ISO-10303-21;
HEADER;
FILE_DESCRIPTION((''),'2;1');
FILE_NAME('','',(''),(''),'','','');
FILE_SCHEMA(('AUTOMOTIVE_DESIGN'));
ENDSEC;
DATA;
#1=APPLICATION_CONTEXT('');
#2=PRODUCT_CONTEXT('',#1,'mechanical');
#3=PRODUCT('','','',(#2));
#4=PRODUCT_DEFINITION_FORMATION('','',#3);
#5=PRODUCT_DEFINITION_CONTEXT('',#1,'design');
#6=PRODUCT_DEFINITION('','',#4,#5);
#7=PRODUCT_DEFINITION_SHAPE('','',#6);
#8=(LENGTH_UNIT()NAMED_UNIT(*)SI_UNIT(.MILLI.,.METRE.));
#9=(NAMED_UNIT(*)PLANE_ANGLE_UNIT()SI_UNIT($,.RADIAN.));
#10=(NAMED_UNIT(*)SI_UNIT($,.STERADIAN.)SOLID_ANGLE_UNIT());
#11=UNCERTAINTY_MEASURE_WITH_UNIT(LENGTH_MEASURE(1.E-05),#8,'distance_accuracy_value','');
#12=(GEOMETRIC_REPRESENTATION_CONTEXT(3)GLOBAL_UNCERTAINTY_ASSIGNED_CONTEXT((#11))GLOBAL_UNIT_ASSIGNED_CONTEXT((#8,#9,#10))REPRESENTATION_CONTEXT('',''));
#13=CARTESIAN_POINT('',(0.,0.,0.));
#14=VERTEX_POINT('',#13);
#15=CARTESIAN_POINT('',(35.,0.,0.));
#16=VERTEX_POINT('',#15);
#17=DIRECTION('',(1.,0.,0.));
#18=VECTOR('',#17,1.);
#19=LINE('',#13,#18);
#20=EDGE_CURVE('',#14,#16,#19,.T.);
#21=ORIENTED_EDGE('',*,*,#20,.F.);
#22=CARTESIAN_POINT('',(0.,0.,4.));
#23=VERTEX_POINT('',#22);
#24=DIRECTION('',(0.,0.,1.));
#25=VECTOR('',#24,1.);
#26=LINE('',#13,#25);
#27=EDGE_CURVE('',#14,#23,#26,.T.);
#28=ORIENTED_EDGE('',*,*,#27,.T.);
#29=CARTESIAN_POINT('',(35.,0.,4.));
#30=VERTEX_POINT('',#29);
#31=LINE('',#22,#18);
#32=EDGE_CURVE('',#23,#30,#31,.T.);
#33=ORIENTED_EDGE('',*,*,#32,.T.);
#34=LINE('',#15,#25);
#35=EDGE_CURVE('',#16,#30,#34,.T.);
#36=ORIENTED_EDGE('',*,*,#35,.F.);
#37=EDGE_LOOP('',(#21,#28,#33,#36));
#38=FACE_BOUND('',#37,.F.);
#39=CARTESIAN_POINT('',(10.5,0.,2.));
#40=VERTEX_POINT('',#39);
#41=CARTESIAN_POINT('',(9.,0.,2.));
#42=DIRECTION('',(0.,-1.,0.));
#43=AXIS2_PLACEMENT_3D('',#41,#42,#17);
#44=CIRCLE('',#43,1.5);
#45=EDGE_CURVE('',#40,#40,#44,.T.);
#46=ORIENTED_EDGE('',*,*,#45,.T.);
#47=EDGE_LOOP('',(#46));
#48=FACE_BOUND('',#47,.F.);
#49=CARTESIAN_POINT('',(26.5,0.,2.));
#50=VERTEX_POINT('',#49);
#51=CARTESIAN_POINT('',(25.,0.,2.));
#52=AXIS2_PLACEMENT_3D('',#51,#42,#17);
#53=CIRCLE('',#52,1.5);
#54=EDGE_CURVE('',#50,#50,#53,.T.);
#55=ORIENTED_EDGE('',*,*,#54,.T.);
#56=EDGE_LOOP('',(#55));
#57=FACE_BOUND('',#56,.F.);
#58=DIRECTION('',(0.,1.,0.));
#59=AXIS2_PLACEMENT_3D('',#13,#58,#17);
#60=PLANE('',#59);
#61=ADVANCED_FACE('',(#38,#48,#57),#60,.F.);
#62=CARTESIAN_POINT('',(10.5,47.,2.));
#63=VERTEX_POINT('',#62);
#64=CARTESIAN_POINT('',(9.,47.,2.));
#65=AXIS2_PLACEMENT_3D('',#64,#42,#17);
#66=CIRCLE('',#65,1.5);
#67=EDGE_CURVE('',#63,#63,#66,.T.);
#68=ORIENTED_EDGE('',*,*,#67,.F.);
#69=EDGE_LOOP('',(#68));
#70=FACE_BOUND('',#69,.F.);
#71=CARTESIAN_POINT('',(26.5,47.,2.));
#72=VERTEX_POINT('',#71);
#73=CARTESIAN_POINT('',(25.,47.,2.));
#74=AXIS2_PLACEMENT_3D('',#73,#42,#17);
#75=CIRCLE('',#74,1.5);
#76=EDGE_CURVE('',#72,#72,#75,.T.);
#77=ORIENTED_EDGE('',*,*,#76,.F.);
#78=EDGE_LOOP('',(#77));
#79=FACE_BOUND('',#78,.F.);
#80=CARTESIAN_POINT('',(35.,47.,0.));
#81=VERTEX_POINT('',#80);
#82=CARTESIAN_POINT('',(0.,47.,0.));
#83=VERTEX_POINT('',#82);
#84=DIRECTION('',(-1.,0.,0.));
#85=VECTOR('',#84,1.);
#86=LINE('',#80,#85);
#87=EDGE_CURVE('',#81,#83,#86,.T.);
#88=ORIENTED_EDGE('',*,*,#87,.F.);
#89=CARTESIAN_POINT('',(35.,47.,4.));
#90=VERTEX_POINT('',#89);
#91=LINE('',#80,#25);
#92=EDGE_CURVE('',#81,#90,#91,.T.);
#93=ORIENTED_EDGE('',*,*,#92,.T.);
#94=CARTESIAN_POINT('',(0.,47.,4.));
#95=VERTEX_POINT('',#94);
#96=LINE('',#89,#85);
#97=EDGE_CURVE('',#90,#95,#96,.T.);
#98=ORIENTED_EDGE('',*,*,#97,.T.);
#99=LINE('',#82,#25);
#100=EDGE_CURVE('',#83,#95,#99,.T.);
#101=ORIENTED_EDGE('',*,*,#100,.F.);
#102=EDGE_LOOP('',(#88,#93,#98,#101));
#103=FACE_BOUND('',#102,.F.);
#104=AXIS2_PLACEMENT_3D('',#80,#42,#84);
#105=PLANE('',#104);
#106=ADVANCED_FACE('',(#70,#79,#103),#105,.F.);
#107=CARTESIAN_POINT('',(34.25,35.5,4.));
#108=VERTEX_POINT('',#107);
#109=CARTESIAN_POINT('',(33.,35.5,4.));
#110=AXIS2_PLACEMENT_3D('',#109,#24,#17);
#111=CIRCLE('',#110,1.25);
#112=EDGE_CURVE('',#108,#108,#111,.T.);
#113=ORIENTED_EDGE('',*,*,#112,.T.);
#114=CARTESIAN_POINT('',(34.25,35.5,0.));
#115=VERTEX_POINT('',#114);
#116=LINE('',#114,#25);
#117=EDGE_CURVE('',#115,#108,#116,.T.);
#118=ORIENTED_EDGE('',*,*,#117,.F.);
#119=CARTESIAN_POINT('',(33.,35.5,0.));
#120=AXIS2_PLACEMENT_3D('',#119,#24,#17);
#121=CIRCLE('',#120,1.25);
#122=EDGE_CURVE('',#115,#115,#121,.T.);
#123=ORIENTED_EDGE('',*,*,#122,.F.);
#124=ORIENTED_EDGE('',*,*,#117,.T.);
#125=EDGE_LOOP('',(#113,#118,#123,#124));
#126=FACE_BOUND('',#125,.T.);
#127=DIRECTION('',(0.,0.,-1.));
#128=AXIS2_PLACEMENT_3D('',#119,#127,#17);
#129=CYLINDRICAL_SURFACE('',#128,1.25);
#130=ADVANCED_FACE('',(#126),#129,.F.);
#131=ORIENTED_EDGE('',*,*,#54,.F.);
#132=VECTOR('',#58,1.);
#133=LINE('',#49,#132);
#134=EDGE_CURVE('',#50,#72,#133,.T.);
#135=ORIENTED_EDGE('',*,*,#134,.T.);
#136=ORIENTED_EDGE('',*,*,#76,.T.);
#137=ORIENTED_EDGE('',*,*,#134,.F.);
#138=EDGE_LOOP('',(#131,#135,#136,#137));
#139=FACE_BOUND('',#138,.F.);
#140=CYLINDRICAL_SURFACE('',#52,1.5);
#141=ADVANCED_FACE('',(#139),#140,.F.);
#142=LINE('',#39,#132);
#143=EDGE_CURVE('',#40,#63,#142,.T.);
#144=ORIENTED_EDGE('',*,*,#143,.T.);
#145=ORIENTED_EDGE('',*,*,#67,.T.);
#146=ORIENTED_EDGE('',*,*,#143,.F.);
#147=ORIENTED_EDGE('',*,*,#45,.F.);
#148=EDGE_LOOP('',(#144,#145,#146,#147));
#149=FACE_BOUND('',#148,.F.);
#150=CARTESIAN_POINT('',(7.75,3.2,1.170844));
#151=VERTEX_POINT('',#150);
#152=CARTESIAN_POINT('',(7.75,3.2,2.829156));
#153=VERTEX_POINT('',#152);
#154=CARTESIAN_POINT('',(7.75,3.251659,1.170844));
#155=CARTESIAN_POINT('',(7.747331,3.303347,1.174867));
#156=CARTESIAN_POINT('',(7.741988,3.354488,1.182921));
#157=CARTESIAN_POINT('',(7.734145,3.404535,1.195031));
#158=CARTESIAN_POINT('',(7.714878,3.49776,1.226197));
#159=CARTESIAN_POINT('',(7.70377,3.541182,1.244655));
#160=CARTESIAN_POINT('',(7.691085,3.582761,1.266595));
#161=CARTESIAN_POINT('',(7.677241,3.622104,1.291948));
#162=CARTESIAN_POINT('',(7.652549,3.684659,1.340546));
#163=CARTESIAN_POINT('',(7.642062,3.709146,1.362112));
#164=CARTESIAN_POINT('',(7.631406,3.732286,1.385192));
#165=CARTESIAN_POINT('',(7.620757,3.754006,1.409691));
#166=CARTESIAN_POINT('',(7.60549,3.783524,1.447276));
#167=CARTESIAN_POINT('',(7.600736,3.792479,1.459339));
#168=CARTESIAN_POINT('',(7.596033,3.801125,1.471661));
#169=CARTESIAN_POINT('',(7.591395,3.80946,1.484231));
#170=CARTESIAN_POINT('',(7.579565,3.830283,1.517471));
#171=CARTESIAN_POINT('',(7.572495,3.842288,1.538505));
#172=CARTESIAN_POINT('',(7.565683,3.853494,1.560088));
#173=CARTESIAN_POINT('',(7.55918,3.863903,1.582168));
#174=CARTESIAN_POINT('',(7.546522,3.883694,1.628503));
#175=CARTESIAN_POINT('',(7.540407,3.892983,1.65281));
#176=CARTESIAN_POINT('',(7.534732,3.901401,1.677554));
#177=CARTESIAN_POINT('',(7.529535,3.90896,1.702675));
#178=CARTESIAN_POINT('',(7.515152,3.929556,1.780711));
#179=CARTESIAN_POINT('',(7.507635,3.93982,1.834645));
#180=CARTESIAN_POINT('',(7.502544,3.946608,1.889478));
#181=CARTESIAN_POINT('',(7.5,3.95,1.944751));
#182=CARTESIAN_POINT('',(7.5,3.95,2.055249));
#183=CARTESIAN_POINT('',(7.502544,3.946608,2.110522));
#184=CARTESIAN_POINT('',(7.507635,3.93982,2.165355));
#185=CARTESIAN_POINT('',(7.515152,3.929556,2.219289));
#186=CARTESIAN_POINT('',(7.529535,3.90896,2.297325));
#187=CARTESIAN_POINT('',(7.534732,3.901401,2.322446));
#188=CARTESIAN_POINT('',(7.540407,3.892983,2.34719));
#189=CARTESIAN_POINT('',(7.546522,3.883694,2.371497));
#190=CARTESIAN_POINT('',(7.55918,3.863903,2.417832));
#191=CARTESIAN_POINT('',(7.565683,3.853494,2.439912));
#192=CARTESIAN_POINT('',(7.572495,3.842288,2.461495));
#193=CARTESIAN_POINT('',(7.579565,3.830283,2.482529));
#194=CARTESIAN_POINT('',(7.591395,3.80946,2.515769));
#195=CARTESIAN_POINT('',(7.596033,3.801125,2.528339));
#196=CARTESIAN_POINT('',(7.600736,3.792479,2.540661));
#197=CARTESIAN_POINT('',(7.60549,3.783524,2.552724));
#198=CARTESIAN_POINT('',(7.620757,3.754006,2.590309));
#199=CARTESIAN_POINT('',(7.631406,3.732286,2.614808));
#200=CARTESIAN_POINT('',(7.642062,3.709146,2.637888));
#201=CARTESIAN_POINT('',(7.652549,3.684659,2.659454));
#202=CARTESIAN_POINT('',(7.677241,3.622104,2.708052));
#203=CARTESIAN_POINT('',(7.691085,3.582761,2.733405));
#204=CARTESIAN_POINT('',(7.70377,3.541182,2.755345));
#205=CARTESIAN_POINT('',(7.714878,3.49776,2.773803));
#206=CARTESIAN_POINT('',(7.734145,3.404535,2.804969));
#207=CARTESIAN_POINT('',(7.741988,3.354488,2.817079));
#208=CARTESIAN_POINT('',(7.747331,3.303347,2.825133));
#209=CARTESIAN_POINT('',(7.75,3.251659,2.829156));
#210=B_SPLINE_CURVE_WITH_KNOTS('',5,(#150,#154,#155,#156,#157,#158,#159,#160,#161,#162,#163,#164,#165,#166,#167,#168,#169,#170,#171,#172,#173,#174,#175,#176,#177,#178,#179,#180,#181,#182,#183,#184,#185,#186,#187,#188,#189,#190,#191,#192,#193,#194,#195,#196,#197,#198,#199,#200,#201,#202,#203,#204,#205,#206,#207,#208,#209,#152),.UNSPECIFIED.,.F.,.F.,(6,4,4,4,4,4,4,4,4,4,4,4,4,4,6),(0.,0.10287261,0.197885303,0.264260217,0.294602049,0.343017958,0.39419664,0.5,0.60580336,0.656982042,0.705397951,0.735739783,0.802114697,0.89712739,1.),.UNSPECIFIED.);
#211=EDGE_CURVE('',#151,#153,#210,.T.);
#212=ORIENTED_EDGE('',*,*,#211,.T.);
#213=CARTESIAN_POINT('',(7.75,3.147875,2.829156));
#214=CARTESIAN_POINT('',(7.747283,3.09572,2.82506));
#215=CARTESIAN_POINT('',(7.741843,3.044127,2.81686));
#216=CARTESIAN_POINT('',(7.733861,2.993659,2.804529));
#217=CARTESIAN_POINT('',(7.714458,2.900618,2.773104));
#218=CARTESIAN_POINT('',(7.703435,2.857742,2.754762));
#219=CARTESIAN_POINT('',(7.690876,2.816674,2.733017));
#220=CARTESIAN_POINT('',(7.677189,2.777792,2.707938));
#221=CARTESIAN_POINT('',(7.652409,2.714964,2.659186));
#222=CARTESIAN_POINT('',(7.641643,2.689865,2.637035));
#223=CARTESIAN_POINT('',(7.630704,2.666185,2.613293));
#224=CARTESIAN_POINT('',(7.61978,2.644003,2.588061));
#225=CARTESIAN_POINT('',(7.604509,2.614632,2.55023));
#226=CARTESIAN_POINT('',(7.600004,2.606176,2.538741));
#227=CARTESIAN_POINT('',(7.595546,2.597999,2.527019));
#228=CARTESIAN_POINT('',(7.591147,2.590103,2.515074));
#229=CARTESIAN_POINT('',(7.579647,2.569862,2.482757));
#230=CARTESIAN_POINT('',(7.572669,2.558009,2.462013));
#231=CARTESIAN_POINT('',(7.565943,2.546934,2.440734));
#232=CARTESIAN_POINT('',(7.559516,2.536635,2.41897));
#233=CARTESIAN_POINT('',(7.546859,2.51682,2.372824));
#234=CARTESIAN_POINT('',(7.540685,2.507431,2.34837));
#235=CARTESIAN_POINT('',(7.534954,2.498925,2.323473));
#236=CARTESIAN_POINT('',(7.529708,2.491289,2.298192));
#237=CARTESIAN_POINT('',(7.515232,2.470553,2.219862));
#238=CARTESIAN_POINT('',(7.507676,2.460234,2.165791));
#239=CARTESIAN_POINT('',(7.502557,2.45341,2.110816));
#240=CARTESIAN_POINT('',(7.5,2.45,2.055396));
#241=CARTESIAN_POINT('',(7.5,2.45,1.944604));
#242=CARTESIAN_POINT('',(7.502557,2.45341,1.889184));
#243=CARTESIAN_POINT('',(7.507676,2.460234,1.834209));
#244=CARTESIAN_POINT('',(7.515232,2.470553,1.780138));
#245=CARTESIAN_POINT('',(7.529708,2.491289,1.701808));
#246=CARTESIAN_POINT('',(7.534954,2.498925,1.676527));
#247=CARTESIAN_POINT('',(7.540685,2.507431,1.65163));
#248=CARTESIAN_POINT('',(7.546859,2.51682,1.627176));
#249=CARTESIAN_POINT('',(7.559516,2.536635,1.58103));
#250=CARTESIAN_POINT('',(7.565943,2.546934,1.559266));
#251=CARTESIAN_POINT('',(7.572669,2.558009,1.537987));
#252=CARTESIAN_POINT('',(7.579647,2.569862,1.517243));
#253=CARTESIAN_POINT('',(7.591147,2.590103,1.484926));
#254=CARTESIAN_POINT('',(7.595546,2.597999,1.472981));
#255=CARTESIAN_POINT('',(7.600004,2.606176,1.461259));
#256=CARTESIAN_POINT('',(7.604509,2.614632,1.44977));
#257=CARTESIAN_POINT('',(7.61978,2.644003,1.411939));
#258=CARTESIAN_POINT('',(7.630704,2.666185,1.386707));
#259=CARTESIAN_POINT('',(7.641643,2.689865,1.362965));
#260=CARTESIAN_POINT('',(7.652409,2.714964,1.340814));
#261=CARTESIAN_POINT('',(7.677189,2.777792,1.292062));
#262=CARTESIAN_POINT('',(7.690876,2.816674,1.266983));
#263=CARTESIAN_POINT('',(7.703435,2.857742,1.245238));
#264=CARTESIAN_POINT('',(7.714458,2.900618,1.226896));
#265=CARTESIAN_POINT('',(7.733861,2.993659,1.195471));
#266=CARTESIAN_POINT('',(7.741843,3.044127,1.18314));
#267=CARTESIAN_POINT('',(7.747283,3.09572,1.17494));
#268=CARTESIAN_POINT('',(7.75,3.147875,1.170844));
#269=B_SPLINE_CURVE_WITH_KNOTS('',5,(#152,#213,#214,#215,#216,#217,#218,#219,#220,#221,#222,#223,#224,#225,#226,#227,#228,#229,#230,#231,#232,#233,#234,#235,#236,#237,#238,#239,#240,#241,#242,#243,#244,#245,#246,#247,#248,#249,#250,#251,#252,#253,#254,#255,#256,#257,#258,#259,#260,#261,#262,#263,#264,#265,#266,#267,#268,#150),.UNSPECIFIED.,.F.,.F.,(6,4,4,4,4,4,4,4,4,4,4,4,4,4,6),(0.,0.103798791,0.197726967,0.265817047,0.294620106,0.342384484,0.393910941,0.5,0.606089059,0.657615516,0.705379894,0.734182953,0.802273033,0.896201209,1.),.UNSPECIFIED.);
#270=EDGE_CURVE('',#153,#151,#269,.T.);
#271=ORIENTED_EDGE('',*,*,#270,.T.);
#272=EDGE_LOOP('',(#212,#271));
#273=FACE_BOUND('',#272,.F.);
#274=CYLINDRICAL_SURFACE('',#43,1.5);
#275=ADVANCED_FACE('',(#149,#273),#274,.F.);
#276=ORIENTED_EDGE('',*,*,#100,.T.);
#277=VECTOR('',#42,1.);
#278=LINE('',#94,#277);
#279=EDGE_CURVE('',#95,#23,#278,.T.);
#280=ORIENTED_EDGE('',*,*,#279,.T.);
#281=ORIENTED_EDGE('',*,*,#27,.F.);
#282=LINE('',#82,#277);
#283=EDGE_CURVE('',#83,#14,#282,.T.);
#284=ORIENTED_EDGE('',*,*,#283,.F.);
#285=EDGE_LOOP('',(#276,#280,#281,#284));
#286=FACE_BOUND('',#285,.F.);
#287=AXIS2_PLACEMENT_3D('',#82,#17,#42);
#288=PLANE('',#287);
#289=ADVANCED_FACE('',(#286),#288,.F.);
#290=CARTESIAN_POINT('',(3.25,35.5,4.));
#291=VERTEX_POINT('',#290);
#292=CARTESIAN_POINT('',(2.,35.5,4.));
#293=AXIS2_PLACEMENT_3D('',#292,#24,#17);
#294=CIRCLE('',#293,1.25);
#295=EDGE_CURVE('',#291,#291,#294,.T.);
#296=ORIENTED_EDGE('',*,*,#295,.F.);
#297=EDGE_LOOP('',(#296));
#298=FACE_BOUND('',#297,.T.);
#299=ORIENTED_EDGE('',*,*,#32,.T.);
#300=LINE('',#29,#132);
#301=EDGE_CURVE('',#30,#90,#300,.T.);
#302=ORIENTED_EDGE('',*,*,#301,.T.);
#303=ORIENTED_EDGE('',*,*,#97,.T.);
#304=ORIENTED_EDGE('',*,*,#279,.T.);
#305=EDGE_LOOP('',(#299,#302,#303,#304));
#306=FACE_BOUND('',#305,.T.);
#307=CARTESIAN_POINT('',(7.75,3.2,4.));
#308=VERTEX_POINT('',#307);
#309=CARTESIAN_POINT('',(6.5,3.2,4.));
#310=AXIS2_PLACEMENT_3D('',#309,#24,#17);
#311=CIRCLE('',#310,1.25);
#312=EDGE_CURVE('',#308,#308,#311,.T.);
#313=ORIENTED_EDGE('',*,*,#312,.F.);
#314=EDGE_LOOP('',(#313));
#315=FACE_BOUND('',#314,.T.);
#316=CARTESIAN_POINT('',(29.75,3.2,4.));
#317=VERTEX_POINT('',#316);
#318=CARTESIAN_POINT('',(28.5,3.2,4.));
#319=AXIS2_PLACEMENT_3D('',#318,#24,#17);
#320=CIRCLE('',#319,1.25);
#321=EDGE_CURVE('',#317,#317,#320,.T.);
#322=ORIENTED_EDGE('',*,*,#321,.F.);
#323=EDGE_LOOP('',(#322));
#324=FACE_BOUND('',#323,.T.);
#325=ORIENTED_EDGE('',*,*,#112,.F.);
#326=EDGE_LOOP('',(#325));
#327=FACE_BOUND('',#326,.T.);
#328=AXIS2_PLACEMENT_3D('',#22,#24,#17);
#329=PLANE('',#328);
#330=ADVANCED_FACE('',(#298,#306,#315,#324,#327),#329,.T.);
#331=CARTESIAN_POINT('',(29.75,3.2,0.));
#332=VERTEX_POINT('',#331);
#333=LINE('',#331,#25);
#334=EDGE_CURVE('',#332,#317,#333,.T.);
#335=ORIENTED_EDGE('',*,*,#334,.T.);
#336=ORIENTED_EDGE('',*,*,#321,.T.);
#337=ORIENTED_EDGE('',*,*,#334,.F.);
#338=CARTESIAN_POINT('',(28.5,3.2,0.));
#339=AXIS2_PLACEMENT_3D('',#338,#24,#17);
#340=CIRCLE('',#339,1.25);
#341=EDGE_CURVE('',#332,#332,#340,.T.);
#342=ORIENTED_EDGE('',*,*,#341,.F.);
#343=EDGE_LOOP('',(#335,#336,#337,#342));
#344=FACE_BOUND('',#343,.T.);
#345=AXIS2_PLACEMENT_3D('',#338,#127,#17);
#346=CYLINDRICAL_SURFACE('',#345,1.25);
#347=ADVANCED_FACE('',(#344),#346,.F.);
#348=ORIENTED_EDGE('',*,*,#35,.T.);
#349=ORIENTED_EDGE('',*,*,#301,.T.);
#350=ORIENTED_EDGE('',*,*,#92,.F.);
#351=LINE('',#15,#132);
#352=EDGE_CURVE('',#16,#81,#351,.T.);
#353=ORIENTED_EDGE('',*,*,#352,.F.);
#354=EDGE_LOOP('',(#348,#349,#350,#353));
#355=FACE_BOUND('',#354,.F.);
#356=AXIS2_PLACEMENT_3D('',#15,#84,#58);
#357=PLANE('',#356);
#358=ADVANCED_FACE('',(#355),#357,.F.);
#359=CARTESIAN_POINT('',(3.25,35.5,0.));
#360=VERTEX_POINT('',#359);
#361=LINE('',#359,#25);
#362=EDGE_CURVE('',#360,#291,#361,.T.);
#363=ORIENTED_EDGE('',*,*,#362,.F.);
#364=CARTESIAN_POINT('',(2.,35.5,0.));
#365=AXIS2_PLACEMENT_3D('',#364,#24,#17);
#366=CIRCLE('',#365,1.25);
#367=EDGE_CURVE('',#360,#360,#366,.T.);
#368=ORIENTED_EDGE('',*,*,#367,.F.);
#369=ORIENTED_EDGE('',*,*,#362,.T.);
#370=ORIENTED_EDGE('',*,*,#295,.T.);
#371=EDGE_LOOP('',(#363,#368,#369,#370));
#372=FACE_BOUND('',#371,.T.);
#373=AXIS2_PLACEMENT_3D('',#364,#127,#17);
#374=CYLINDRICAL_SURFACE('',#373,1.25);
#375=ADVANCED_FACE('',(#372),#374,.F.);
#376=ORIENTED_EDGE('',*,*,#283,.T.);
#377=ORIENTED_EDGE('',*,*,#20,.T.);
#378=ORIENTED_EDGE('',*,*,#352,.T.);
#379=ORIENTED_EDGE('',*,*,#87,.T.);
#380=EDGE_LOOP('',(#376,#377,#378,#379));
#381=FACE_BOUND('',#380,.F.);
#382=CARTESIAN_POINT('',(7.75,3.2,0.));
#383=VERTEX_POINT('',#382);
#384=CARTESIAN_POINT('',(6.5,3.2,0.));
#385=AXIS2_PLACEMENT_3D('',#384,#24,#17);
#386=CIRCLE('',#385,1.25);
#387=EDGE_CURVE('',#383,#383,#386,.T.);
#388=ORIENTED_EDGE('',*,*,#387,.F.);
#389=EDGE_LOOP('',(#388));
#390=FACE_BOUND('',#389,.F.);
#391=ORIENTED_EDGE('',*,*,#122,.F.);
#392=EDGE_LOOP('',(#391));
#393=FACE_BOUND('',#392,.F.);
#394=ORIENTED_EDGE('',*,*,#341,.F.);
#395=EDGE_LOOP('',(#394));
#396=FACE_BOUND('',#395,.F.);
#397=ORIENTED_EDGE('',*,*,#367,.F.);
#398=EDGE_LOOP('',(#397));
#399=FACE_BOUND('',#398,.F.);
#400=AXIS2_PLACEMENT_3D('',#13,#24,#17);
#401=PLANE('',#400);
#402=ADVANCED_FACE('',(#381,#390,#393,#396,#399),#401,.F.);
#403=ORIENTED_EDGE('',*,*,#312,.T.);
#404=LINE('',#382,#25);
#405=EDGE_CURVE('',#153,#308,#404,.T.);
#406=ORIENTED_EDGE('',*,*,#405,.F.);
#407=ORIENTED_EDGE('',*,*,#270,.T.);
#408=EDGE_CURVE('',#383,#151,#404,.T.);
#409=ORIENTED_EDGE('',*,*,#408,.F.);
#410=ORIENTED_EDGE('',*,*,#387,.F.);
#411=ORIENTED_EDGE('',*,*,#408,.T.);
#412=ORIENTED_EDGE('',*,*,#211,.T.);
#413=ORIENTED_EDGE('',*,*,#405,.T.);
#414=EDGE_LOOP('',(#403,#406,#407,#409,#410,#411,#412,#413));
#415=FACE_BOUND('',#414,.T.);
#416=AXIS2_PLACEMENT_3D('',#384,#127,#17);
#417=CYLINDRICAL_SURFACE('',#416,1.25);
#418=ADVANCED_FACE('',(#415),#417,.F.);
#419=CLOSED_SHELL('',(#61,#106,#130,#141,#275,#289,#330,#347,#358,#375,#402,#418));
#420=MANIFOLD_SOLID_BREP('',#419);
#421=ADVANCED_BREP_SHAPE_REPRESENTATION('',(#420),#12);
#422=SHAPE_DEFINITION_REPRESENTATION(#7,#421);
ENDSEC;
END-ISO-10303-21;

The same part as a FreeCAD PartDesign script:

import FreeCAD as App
import Part
import Sketcher
Q = App.Units.Quantity

doc = App.newDocument("Part")
body = doc.addObject("PartDesign::Body", "Body")

# Sketch on XY plane
sketch1 = doc.addObject("Sketcher::SketchObject", "Sketch")
body.addObject(sketch1)
sketch1.AttachmentSupport = (doc.XY_Plane, [""])
sketch1.MapMode = "FlatFace"
sketch1.addGeometry([
    Part.LineSegment(App.Vector(0, 47, 0), App.Vector(0, 0, 0)),  # 0
    Part.LineSegment(App.Vector(0, 0, 0), App.Vector(35, 0, 0)),  # 1
    Part.LineSegment(App.Vector(35, 0, 0), App.Vector(35, 47, 0)),  # 2
    Part.LineSegment(App.Vector(35, 47, 0), App.Vector(0, 47, 0)),  # 3
    Part.Circle(App.Vector(6.5, 3.2, 0), App.Vector(0, 0, 1), 1.2),  # 4
    Part.Circle(App.Vector(28.5, 3.2, 0), App.Vector(0, 0, 1), 1.2),  # 5
    Part.Circle(App.Vector(2, 35.5, 0), App.Vector(0, 0, 1), 1.2),  # 6
    Part.Circle(App.Vector(33, 35.5, 0), App.Vector(0, 0, 1), 1.2),  # 7
], False)
sketch1.addConstraint([
    Sketcher.Constraint("Coincident", 0, 2, 1, 1),
    Sketcher.Constraint("Coincident", 1, 2, 2, 1),
    Sketcher.Constraint("Coincident", 2, 2, 3, 1),
    Sketcher.Constraint("Coincident", 3, 2, 0, 1),
    Sketcher.Constraint("Vertical", 0),
    Sketcher.Constraint("Horizontal", 1),
    Sketcher.Constraint("Vertical", 2),
    Sketcher.Constraint("Horizontal", 3),
    Sketcher.Constraint("Coincident", 0, 2, -1, 1),
    Sketcher.Constraint("Equal", 4, 5),
    Sketcher.Constraint("Equal", 5, 6),
    Sketcher.Constraint("Equal", 6, 7),
    Sketcher.Constraint("Horizontal", 4, 3, 5, 3),
    Sketcher.Constraint("Horizontal", 6, 3, 7, 3),
    Sketcher.Constraint("Diameter", 4, Q("2.5 mm")),
    Sketcher.Constraint("DistanceX", 1, 1, 1, 2, Q("35 mm")),
    Sketcher.Constraint("DistanceY", 0, 2, 0, 1, Q("47 mm")),
    Sketcher.Constraint("DistanceX", -1, 1, 6, 3, Q("2 mm")),
    Sketcher.Constraint("DistanceX", 7, 3, 1, 2, Q("2 mm")),
    Sketcher.Constraint("DistanceX", -1, 1, 4, 3, Q("6.5 mm")),
    Sketcher.Constraint("DistanceY", -1, 1, 4, 3, Q("3.2 mm")),
    Sketcher.Constraint("DistanceX", 5, 3, 1, 2, Q("6.5 mm")),
    Sketcher.Constraint("DistanceY", 7, 3, 2, 2, Q("11.5 mm")),
])
pad1 = doc.addObject("PartDesign::Pad", "Pad")
body.addObject(pad1)
pad1.Profile = sketch1
pad1.Length = 4

# Sketch on XZ plane
sketch2 = doc.addObject("Sketcher::SketchObject", "Sketch001")
body.addObject(sketch2)
sketch2.AttachmentSupport = (doc.XZ_Plane, [""])
sketch2.MapMode = "FlatFace"
sketch2.addGeometry([
    Part.Circle(App.Vector(9, 2, 0), App.Vector(0, 0, 1), 1.5),
    Part.Circle(App.Vector(25, 2, 0), App.Vector(0, 0, 1), 1.5),
], False)
sketch2.addConstraint([
    Sketcher.Constraint("Equal", 0, 1),
    Sketcher.Constraint("Horizontal", 0, 3, 1, 3),
    Sketcher.Constraint("Diameter", 0, Q("3 mm")),
    Sketcher.Constraint("DistanceX", -1, 1, 0, 3, Q("9 mm")),
    Sketcher.Constraint("DistanceY", -1, 1, 0, 3, Q("2 mm")),
    Sketcher.Constraint("DistanceX", -1, 1, 1, 3, Q("25 mm")),
])
pocket1 = doc.addObject("PartDesign::Pocket", "Pocket")
body.addObject(pocket1)
pocket1.Profile = sketch2
pocket1.Type = "ThroughAll"
pocket1.Midplane = True

doc.recompute()
